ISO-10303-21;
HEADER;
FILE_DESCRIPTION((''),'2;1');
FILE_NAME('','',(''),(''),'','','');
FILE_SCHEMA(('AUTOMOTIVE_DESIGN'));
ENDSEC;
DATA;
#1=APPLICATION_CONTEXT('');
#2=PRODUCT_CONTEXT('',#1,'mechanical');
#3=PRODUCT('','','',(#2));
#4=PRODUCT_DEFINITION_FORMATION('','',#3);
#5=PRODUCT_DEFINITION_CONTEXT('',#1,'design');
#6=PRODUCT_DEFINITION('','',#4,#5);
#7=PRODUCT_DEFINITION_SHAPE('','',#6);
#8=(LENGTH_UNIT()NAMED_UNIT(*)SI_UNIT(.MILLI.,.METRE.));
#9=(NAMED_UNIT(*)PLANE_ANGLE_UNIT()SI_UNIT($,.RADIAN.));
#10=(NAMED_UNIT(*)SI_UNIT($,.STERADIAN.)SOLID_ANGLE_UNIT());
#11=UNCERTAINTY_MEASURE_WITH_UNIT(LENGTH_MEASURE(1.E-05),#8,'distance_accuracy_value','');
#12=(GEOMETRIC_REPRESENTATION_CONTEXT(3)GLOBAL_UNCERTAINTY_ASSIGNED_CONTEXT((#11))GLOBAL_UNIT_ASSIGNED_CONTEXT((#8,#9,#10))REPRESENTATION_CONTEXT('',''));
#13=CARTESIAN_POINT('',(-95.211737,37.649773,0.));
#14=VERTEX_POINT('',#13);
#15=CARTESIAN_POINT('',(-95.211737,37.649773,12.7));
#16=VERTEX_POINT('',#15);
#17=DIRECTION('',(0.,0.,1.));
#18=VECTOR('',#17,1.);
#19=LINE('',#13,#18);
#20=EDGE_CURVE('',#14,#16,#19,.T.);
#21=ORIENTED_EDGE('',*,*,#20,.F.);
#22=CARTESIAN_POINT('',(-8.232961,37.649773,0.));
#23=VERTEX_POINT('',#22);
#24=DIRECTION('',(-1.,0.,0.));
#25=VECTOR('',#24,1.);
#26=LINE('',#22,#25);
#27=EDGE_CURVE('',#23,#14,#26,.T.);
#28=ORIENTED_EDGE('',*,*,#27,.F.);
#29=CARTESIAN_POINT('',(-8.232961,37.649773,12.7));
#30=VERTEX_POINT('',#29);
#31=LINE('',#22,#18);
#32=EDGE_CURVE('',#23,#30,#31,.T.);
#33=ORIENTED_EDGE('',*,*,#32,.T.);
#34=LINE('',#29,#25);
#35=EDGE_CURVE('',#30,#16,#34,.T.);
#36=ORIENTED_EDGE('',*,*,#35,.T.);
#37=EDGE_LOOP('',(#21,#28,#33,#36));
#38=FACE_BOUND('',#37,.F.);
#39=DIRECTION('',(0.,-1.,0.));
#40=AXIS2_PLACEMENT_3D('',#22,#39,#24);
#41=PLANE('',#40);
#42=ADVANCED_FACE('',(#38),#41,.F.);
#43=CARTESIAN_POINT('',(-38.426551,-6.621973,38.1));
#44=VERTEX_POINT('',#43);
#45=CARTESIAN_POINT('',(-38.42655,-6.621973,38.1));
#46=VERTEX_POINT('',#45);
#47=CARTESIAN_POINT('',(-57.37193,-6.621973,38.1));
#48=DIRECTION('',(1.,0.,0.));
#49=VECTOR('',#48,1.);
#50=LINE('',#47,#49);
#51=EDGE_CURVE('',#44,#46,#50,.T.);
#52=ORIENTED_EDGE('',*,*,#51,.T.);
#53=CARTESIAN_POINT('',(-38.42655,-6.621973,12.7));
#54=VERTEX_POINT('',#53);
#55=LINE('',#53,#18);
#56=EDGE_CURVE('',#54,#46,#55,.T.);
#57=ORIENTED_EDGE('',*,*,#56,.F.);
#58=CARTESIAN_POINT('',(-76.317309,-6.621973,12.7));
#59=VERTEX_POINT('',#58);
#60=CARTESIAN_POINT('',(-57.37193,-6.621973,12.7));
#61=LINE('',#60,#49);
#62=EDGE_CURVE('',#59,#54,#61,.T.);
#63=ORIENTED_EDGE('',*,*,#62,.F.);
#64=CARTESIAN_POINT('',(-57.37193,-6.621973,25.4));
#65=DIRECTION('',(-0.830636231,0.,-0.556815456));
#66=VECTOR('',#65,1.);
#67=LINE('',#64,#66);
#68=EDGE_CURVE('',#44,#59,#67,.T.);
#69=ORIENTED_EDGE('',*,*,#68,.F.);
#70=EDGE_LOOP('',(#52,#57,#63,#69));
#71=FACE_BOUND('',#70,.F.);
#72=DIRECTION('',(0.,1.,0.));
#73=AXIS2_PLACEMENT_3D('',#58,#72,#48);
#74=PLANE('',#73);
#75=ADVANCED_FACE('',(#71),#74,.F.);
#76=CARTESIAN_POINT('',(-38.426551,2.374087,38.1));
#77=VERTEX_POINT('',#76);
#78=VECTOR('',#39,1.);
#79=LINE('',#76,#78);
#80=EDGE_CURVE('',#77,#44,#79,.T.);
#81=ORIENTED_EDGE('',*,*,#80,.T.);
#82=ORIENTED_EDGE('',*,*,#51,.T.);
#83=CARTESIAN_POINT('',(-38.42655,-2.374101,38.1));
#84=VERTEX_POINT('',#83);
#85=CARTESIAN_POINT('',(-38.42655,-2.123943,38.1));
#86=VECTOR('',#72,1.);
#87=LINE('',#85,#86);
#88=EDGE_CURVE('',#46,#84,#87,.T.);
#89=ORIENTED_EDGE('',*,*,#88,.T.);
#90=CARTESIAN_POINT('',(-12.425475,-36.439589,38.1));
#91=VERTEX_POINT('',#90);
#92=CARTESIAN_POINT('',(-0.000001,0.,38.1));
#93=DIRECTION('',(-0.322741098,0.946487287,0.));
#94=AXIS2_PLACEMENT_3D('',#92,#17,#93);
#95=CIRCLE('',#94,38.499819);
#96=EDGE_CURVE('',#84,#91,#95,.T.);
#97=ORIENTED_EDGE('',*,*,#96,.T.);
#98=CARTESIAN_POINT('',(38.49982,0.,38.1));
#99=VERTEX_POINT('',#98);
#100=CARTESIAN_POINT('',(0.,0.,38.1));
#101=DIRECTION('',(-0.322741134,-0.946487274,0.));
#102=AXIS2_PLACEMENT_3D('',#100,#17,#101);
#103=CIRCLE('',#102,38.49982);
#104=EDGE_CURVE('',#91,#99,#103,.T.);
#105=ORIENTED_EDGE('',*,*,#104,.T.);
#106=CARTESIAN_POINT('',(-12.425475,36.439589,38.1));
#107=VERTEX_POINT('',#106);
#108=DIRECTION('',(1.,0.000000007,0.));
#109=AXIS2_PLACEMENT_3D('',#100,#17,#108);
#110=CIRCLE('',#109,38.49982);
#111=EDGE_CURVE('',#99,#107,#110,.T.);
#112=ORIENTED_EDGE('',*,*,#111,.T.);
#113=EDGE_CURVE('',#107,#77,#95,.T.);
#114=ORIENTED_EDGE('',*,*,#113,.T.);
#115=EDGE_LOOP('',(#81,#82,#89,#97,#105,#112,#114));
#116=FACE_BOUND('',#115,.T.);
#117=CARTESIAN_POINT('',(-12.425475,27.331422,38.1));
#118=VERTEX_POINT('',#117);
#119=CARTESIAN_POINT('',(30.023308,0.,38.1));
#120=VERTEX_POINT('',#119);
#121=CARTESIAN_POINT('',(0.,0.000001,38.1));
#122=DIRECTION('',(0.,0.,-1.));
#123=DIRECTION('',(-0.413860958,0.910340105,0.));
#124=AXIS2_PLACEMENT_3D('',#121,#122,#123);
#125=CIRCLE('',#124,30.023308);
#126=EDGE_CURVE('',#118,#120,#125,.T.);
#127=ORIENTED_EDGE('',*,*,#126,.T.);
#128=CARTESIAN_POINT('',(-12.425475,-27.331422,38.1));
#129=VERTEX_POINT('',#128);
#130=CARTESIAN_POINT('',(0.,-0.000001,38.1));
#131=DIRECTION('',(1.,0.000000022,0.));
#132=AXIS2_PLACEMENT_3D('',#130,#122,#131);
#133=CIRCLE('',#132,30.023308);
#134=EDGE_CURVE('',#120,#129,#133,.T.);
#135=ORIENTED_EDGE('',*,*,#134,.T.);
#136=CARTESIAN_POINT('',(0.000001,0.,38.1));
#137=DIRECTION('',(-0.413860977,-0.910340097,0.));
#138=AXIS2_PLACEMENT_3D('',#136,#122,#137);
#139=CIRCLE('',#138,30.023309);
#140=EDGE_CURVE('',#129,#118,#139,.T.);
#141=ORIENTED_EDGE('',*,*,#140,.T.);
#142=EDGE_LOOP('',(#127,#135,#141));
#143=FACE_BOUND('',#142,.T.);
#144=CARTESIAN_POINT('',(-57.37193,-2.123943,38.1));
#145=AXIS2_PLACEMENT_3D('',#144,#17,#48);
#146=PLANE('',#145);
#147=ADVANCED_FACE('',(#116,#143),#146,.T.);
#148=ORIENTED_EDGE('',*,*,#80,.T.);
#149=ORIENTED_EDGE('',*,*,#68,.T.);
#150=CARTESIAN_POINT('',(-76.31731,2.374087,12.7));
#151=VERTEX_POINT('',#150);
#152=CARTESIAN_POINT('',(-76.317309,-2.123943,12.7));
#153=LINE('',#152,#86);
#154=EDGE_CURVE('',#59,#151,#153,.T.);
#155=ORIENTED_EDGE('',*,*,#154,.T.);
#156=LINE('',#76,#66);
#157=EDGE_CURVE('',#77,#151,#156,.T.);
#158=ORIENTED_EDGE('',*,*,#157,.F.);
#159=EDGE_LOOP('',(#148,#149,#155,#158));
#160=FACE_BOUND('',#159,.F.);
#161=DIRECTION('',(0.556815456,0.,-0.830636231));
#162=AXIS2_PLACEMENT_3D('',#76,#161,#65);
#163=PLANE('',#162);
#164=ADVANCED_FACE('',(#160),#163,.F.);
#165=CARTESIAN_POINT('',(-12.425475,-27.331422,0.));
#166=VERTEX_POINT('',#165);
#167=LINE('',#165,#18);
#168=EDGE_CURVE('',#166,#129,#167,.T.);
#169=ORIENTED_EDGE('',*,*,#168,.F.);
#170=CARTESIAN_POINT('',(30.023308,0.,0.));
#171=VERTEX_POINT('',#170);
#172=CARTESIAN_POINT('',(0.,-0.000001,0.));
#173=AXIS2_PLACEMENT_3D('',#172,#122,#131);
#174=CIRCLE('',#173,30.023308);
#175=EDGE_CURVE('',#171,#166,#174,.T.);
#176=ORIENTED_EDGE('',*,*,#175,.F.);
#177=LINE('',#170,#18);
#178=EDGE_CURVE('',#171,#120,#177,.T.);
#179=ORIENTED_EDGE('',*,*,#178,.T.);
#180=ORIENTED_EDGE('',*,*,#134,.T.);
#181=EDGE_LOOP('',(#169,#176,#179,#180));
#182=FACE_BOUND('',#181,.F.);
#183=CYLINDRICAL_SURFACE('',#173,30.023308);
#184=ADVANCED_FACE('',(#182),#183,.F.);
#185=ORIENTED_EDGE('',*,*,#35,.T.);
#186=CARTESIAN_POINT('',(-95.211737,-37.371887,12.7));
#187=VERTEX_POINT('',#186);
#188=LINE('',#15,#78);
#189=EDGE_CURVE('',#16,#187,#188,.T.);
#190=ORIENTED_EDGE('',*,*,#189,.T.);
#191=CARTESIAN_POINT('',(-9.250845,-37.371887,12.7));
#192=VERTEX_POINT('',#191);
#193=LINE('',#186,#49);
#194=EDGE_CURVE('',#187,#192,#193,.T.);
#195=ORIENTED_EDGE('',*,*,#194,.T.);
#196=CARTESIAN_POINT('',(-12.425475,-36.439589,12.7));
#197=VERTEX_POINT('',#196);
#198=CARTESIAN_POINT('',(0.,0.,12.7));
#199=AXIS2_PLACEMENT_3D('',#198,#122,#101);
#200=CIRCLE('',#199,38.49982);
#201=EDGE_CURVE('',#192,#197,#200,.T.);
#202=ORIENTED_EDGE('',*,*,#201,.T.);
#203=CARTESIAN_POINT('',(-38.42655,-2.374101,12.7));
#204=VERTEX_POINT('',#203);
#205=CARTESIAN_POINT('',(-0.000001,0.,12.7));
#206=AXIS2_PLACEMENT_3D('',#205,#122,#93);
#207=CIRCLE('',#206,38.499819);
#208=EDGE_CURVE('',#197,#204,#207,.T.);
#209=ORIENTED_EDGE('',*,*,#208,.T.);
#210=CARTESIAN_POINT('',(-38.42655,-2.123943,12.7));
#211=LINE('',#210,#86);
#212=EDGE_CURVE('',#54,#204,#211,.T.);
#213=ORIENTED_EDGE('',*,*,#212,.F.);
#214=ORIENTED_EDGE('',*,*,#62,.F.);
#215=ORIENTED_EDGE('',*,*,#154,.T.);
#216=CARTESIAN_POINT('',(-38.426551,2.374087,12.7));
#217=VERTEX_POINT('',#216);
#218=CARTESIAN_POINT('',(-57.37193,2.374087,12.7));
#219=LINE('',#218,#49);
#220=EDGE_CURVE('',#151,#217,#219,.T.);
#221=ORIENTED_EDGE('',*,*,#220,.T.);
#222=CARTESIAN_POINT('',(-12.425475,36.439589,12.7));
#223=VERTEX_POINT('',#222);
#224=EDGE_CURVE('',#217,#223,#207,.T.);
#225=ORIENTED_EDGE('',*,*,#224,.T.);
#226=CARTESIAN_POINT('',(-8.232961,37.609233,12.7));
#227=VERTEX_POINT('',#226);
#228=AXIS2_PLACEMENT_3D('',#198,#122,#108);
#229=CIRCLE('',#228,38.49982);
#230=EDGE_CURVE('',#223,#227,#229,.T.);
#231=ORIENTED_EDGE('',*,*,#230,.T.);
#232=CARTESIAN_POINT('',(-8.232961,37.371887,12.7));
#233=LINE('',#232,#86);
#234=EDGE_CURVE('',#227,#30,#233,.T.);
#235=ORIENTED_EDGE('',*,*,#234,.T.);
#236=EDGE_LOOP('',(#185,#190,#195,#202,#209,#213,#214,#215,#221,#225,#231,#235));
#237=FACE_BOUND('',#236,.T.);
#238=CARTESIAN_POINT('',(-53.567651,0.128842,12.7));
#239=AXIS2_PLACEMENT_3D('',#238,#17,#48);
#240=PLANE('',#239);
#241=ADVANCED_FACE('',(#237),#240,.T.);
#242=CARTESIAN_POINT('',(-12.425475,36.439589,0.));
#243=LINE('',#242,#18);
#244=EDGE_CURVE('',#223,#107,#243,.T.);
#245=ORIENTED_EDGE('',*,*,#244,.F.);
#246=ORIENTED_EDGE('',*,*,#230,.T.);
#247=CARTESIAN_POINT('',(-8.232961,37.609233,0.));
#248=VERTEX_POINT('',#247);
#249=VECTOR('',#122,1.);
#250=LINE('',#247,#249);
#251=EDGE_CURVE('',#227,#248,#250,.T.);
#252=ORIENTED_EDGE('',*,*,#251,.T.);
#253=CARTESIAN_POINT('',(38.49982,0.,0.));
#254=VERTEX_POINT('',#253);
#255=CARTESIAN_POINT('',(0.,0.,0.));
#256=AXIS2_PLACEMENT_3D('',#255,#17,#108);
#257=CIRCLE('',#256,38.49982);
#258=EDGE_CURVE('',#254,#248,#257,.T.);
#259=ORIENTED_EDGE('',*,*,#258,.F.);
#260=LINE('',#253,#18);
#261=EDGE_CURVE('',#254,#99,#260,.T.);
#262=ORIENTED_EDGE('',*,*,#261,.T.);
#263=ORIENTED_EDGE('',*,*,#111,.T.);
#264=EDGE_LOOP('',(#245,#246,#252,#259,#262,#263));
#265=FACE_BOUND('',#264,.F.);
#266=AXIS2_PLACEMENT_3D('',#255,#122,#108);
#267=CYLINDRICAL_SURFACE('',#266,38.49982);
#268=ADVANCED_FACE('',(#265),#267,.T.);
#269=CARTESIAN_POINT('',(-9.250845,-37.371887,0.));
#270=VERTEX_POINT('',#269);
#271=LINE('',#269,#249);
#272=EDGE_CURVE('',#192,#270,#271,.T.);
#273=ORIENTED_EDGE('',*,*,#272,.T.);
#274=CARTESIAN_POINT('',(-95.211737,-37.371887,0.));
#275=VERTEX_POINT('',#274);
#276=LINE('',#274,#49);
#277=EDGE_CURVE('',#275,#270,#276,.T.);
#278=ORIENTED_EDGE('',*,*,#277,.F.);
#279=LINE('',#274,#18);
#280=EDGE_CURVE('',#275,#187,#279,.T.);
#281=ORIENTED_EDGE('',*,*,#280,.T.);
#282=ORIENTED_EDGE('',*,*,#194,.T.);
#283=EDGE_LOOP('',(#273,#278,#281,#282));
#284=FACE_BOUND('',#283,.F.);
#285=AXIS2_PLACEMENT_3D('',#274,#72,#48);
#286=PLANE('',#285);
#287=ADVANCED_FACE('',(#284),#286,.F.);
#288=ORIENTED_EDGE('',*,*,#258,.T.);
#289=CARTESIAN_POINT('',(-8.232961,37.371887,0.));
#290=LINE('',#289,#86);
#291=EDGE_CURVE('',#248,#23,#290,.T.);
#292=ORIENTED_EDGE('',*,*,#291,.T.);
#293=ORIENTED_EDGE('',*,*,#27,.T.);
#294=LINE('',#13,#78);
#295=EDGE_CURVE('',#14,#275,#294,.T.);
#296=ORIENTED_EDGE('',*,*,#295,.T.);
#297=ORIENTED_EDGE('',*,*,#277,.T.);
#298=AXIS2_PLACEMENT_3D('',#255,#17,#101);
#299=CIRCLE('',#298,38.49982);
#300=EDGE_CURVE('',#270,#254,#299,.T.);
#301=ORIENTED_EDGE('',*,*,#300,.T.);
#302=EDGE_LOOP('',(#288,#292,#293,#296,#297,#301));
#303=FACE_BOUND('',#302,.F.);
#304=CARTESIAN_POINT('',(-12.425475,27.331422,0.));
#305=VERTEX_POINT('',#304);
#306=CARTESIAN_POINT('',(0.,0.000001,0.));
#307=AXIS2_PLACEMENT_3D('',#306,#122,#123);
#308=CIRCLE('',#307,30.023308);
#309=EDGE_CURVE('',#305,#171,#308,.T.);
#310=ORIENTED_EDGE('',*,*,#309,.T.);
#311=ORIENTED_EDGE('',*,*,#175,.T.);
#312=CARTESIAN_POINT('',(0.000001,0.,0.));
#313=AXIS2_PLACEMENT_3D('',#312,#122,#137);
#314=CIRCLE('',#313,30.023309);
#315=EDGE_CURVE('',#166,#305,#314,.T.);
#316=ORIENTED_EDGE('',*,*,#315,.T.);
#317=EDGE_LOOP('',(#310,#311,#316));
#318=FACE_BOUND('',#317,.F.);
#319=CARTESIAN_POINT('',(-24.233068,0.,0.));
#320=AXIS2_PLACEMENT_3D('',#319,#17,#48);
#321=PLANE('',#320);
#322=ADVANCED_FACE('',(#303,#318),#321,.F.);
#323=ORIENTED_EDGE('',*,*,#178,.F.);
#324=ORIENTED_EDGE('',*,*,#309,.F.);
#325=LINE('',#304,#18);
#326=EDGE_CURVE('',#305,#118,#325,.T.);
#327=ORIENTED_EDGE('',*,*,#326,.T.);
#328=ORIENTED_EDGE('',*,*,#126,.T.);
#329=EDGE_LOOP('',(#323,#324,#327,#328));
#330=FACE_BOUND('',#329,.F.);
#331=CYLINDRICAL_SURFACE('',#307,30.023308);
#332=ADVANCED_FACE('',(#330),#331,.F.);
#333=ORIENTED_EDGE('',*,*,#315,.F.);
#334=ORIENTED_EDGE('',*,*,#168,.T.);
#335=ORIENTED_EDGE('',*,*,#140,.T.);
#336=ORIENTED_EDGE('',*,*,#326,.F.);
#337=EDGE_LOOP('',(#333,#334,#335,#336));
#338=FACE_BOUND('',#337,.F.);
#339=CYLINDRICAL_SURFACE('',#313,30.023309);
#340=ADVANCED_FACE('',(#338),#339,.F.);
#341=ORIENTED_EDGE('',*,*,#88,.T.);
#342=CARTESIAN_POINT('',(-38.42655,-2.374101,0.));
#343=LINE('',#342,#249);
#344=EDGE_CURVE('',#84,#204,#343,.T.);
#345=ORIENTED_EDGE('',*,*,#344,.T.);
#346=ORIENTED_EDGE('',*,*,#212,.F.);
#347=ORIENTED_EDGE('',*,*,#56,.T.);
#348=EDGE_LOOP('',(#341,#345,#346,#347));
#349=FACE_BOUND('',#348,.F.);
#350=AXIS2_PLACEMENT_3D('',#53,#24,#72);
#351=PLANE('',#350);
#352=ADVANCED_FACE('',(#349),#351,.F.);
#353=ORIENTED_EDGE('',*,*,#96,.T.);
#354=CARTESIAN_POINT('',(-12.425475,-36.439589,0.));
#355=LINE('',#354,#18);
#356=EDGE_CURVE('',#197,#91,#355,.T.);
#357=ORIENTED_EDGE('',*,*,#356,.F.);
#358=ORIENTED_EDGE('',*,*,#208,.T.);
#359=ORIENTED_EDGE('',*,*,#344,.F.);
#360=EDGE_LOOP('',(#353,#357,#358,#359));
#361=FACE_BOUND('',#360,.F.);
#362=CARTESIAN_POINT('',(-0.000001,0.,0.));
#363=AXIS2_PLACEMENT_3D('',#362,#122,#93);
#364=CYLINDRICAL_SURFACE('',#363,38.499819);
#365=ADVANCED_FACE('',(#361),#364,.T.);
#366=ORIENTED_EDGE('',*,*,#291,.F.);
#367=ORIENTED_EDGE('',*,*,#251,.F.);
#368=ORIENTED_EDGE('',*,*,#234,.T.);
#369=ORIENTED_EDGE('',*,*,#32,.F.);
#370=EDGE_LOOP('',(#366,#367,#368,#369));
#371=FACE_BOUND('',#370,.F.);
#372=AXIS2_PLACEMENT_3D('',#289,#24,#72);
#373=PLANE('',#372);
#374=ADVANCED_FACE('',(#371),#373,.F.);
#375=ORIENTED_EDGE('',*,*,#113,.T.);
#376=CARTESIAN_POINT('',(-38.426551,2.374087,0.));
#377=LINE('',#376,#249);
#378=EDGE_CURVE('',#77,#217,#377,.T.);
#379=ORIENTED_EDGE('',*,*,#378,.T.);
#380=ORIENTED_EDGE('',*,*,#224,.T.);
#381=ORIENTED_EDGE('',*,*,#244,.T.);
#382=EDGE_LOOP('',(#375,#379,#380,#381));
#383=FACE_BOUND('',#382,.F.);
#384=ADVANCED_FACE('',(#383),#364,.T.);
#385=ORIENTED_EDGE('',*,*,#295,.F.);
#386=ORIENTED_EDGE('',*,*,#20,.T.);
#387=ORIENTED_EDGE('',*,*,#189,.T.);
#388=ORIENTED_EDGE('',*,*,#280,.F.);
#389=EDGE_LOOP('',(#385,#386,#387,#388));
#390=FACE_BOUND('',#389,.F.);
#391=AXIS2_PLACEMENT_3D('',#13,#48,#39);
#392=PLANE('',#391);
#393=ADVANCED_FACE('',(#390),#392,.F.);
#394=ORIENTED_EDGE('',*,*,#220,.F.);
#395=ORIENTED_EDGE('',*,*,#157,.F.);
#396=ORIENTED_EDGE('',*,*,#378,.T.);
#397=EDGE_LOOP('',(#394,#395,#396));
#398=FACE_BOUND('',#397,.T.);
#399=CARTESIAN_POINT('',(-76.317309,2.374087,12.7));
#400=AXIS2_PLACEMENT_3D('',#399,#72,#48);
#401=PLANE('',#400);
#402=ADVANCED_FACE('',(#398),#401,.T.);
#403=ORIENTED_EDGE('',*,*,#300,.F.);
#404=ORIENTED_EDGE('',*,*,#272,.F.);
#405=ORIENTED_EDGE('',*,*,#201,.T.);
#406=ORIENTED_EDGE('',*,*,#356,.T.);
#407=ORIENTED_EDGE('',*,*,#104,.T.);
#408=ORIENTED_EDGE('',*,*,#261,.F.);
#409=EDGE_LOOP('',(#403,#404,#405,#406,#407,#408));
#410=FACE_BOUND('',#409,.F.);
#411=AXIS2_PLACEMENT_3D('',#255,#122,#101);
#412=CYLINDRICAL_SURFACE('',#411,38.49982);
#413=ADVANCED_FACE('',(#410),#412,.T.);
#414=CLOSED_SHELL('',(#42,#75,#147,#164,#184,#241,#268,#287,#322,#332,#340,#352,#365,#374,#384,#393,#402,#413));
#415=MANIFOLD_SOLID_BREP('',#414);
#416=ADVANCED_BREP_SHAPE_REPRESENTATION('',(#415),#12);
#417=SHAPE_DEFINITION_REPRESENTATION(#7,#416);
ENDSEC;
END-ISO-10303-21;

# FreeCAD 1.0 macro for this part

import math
import FreeCAD as App
import Part
import Sketcher

V = App.Vector
Q = App.Units.Quantity


def add_polygon(sketch, points):
    """Adds a closed chain of lines whose ends are joined by coincident constraints."""
    first, n = sketch.GeometryCount, len(points)
    for a, b in zip(points, points[1:] + points[:1]):
        sketch.addGeometry(Part.LineSegment(App.Vector(*a, 0), App.Vector(*b, 0)), False)
    for i in range(n):
        sketch.addConstraint(Sketcher.Constraint("Coincident", first + i, 2, first + (i + 1) % n, 1))

doc = App.newDocument("Part")
params = doc.addObject("Spreadsheet::Sheet", "Params")
for row, (alias, value) in enumerate([
    ("pad1_length", "1.5 in"),
    ("pad2_length", "0.5 in"),
    ("pad3_length", "1 in"),
    ("sketch4_height", "1 in"),
    ("pocket1_length", "1 in"),
], start=1):
    params.set(f"A{row}", alias)
    params.set(f"B{row}", "=" + value)
    params.setAlias(f"B{row}", alias)

body = doc.addObject("PartDesign::Body", "Body")

# Sketch on XY plane
sketch1 = body.newObject("Sketcher::SketchObject", "Sketch")
sketch1.AttachmentSupport = (doc.getObject("XY_Plane"), [""])
sketch1.MapMode = "FlatFace"
sketch1.addGeometry([
    Part.ArcOfCircle(Part.Circle(V(0, 0, 0), V(0, 0, 1), 38), math.radians(109), math.radians(251)),  # 0
    Part.ArcOfCircle(Part.Circle(V(0, 0, 0), V(0, 0, 1), 38), math.radians(-109), math.radians(0)),  # 1
    Part.ArcOfCircle(Part.Circle(V(0, 0, 0), V(0, 0, 1), 38), math.radians(0), math.radians(109)),  # 2
    Part.ArcOfCircle(Part.Circle(V(0, 0, 0), V(0, 0, 1), 30), math.radians(114), math.radians(246)),  # 3
    Part.ArcOfCircle(Part.Circle(V(0, 0, 0), V(0, 0, 1), 30), math.radians(0), math.radians(114)),  # 4
    Part.ArcOfCircle(Part.Circle(V(0, 0, 0), V(0, 0, 1), 30), math.radians(-114), math.radians(0)),  # 5
], False)
sketch1.addConstraint([
    Sketcher.Constraint("Tangent", 0, 2, 1, 1),
    Sketcher.Constraint("Tangent", 1, 2, 2, 1),
    Sketcher.Constraint("Tangent", 2, 2, 0, 1),
    Sketcher.Constraint("Tangent", 3, 1, 4, 2),
    Sketcher.Constraint("Tangent", 4, 1, 5, 2),
    Sketcher.Constraint("Tangent", 5, 1, 3, 2),
    Sketcher.Constraint("Coincident", 0, 3, -1, 1),
    Sketcher.Constraint("Coincident", 3, 3, -1, 1),
    Sketcher.Constraint("PointOnObject", 1, 2, -1),
    Sketcher.Constraint("PointOnObject", 4, 1, -1),
    Sketcher.Constraint("Vertical", 0, 2, 2, 2),
    Sketcher.Constraint("Vertical", 2, 2, 3, 1),
    Sketcher.Constraint("Vertical", 3, 1, 5, 1),
    Sketcher.Constraint("Radius", 0, 38.499819),
    Sketcher.Constraint("Radius", 3, 30.023309),
    Sketcher.Constraint("DistanceY", 0, 2, -1, 1, 36.439589),
])
pad1 = body.newObject("PartDesign::Pad", "Pad")
pad1.Profile = sketch1
pad1.setExpression("Length", "Params.pad1_length")

# Sketch on XY plane
sketch2 = body.newObject("Sketcher::SketchObject", "Sketch001")
sketch2.AttachmentSupport = (doc.getObject("XY_Plane"), [""])
sketch2.MapMode = "FlatFace"
sketch2.addGeometry([
    Part.ArcOfCircle(Part.Circle(V(0, 0, 0), V(0, 0, 1), 38.27), math.radians(102), math.radians(258)),  # 0
    Part.LineSegment(V(-8.23, 37.37, 0), V(-8.23, 37.65, 0)),  # 1
    Part.LineSegment(V(-8.23, 37.65, 0), V(-95.21, 37.65, 0)),  # 2
    Part.LineSegment(V(-95.21, 37.65, 0), V(-95.21, -37.37, 0)),  # 3
    Part.LineSegment(V(-95.21, -37.37, 0), V(-8.23, -37.37, 0)),  # 4
], False)
sketch2.addConstraint([
    Sketcher.Constraint("Coincident", 0, 1, 1, 1),
    Sketcher.Constraint("Coincident", 1, 2, 2, 1),
    Sketcher.Constraint("Coincident", 2, 2, 3, 1),
    Sketcher.Constraint("Coincident", 3, 2, 4, 1),
    Sketcher.Constraint("Coincident", 4, 2, 0, 2),
    Sketcher.Constraint("Vertical", 1),
    Sketcher.Constraint("Horizontal", 2),
    Sketcher.Constraint("Vertical", 3),
    Sketcher.Constraint("Horizontal", 4),
    Sketcher.Constraint("Coincident", 0, 3, -1, 1),
    Sketcher.Constraint("Vertical", 1, 2, 4, 2),
    Sketcher.Constraint("Radius", 0, 38.267997),
    Sketcher.Constraint("DistanceY", 3, 2, 3, 1, 75.02166),
    Sketcher.Constraint("DistanceX", 2, 2, 2, 1, 86.978776),
    Sketcher.Constraint("DistanceY", 1, 1, 1, 2, 0.277886),
])
pad2 = body.newObject("PartDesign::Pad", "Pad001")
pad2.Profile = sketch2
pad2.setExpression("Length", "Params.pad2_length")

# Sketch on XY plane
sketch3 = body.newObject("Sketcher::SketchObject", "Sketch002")
sketch3.AttachmentSupport = (doc.getObject("XY_Plane"), [""])
sketch3.MapMode = "FlatFace"
sketch3.AttachmentOffset = App.Placement(V(0, 0, 0.5 * 25.4), App.Rotation())
add_polygon(sketch3, [(-76, 2), (-76, -7), (-38, -7), (-38, 2)])  # lines 0-3
sketch3.addConstraint([
    Sketcher.Constraint("Vertical", 0),
    Sketcher.Constraint("Horizontal", 1),
    Sketcher.Constraint("Vertical", 2),
    Sketcher.Constraint("Horizontal", 3),
    Sketcher.Constraint("DistanceX", 1, 1, 1, 2, 37.890759),
    Sketcher.Constraint("DistanceY", 0, 2, 0, 1, 8.996059),
    Sketcher.Constraint("DistanceX", 0, 2, -1, 1, 76.317309),
    Sketcher.Constraint("DistanceY", 0, 2, -1, 1, 6.621973),
])
pad3 = body.newObject("PartDesign::Pad", "Pad002")
pad3.Profile = sketch3
pad3.setExpression("Length", "Params.pad3_length")

# Sketch on XZ plane
sketch4 = body.newObject("Sketcher::SketchObject", "Sketch003")
sketch4.AttachmentSupport = (doc.getObject("XZ_Plane"), [""])
sketch4.MapMode = "FlatFace"
sketch4.AttachmentOffset = App.Placement(V(0, 0, -2.374087), App.Rotation())
add_polygon(sketch4, [(-76, 38), (-38, 38), (-76, 13)])  # lines 0-2
sketch4.addConstraint([
    Sketcher.Constraint("Horizontal", 0),
    Sketcher.Constraint("Vertical", 2),
    Sketcher.Constraint("DistanceY", 2, 1, 2, 2, Q("1 in")),
    Sketcher.Constraint("DistanceY", -1, 1, 0, 2, Q("1.5 in")),
    Sketcher.Constraint("DistanceX", 0, 1, 0, 2, 37.890759),
    Sketcher.Constraint("DistanceX", 0, 2, -1, 1, 38.426551),
])
sketch4.setExpression("Constraints[5]", "Params.sketch4_height")
pocket1 = body.newObject("PartDesign::Pocket", "Pocket")
pocket1.Profile = sketch4
pocket1.setExpression("Length", "Params.pocket1_length")
pocket1.Reversed = True

doc.recompute()
